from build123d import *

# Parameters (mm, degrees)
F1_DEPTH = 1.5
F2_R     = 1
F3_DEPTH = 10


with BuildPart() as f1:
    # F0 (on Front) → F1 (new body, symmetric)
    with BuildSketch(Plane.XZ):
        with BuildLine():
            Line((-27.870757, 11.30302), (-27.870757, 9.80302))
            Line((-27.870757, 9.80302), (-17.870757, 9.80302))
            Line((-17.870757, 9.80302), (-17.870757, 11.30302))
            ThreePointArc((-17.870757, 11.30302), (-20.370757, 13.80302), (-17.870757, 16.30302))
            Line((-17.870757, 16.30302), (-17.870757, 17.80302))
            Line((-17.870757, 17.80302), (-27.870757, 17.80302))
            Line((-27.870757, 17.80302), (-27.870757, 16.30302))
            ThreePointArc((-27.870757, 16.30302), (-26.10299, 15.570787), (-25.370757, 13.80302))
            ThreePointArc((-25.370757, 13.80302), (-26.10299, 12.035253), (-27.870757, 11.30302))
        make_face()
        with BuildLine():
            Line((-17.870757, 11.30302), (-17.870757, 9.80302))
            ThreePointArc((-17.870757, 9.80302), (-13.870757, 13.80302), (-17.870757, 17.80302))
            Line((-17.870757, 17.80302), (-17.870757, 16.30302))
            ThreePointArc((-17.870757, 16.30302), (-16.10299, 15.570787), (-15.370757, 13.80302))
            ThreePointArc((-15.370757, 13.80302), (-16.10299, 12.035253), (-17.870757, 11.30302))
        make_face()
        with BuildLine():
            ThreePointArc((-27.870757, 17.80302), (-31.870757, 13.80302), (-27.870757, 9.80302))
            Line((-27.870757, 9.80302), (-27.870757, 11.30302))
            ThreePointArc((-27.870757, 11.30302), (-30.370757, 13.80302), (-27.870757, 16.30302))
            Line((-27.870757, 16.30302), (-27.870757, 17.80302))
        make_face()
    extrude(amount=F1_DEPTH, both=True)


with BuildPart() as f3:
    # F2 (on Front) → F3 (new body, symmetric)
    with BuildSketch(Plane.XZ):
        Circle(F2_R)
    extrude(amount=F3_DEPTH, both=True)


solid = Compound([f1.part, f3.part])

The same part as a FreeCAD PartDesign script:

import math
import FreeCAD as App
import Part
import Sketcher
from FreeCAD import Vector

doc = App.newDocument("Part")
body = doc.addObject("PartDesign::Body", "Body")

sketch1 = body.newObject("Sketcher::SketchObject", "Sketch")
sketch1.AttachmentSupport = (doc.getObject("XZ_Plane"), [""])
sketch1.MapMode = "FlatFace"
sketch1.addGeometry(Part.LineSegment(Vector(-27.9, 9.8, 0), Vector(-17.9, 9.8, 0)), False)
sketch1.addGeometry(Part.ArcOfCircle(Part.Circle(Vector(-17.9, 13.8, 0), Vector(0, 0, 1), 4), math.radians(-90), math.radians(90)), False)
sketch1.addGeometry(Part.LineSegment(Vector(-17.9, 17.8, 0), Vector(-27.9, 17.8, 0)), False)
sketch1.addGeometry(Part.ArcOfCircle(Part.Circle(Vector(-27.9, 13.8, 0), Vector(0, 0, 1), 4), math.radians(90), math.radians(270)), False)
sketch1.addGeometry(Part.ArcOfCircle(Part.Circle(Vector(-27.9, 13.8, 0), Vector(0, 0, 1), 2.5), math.radians(0), math.radians(90)), False)
sketch1.addGeometry(Part.ArcOfCircle(Part.Circle(Vector(-27.9, 13.8, 0), Vector(0, 0, 1), 2.5), math.radians(-90), math.radians(0)), False)
sketch1.addGeometry(Part.ArcOfCircle(Part.Circle(Vector(-27.9, 13.8, 0), Vector(0, 0, 1), 2.5), math.radians(90), math.radians(270)), False)
sketch1.addGeometry(Part.ArcOfCircle(Part.Circle(Vector(-17.9, 13.8, 0), Vector(0, 0, 1), 2.5), math.radians(90), math.radians(270)), False)
sketch1.addGeometry(Part.ArcOfCircle(Part.Circle(Vector(-17.9, 13.8, 0), Vector(0, 0, 1), 2.5), math.radians(0), math.radians(90)), False)
sketch1.addGeometry(Part.ArcOfCircle(Part.Circle(Vector(-17.9, 13.8, 0), Vector(0, 0, 1), 2.5), math.radians(-90), math.radians(0)), False)
sketch1.addConstraint(Sketcher.Constraint("Tangent", 0, 2, 1, 1))
sketch1.addConstraint(Sketcher.Constraint("Tangent", 1, 2, 2, 1))
sketch1.addConstraint(Sketcher.Constraint("Tangent", 2, 2, 3, 1))
sketch1.addConstraint(Sketcher.Constraint("Tangent", 3, 2, 0, 1))
sketch1.addConstraint(Sketcher.Constraint("Tangent", 4, 1, 5, 2))
sketch1.addConstraint(Sketcher.Constraint("Tangent", 5, 1, 6, 2))
sketch1.addConstraint(Sketcher.Constraint("Tangent", 6, 1, 4, 2))
sketch1.addConstraint(Sketcher.Constraint("Tangent", 7, 1, 8, 2))
sketch1.addConstraint(Sketcher.Constraint("Tangent", 8, 1, 9, 2))
sketch1.addConstraint(Sketcher.Constraint("Tangent", 9, 1, 7, 2))
sketch1.addConstraint(Sketcher.Constraint("Horizontal", 0))
sketch1.addConstraint(Sketcher.Constraint("Horizontal", 2))
sketch1.addConstraint(Sketcher.Constraint("Coincident", 4, 3, 3, 3))
sketch1.addConstraint(Sketcher.Constraint("Coincident", 7, 3, 1, 3))
sketch1.addConstraint(Sketcher.Constraint("Equal", 6, 7))
sketch1.addConstraint(Sketcher.Constraint("Horizontal", 9, 3, 4, 1))
sketch1.addConstraint(Sketcher.Constraint("Horizontal", 4, 1, 8, 1))
sketch1.addConstraint(Sketcher.Constraint("Vertical", 3, 2, 5, 1))
sketch1.addConstraint(Sketcher.Constraint("Vertical", 5, 1, 6, 1))
sketch1.addConstraint(Sketcher.Constraint("Vertical", 1, 2, 7, 1))
sketch1.addConstraint(Sketcher.Constraint("Vertical", 7, 1, 9, 1))
sketch1.addConstraint(Sketcher.Constraint("Radius", 1, 4.0))
sketch1.addConstraint(Sketcher.Constraint("Radius", 4, 2.5))
sketch1.addConstraint(Sketcher.Constraint("DistanceX", 0, 1, 0, 2, 10.0))
sketch1.addConstraint(Sketcher.Constraint("DistanceY", -1, 1, 1, 3, 13.80302))
sketch1.addConstraint(Sketcher.Constraint("DistanceX", 1, 3, -1, 1, 17.870757))
pad1 = body.newObject("PartDesign::Pad", "Pad")
pad1.Profile = sketch1
pad1.Length = 3
pad1.Midplane = True
body2 = doc.addObject("PartDesign::Body", "Body001")

sketch2 = body2.newObject("Sketcher::SketchObject", "Sketch001")
sketch2.AttachmentSupport = (doc.getObject("XZ_Plane001"), [""])
sketch2.MapMode = "FlatFace"
sketch2.addGeometry(Part.Circle(Vector(0, 0, 0), Vector(0, 0, 1), 1), False)
sketch2.addConstraint(Sketcher.Constraint("Coincident", 0, 3, -1, 1))
sketch2.addConstraint(Sketcher.Constraint("Diameter", 0, 2.0))
pad2 = body2.newObject("PartDesign::Pad", "Pad001")
pad2.Profile = sketch2
pad2.Length = 20
pad2.Midplane = True

doc.recompute()
